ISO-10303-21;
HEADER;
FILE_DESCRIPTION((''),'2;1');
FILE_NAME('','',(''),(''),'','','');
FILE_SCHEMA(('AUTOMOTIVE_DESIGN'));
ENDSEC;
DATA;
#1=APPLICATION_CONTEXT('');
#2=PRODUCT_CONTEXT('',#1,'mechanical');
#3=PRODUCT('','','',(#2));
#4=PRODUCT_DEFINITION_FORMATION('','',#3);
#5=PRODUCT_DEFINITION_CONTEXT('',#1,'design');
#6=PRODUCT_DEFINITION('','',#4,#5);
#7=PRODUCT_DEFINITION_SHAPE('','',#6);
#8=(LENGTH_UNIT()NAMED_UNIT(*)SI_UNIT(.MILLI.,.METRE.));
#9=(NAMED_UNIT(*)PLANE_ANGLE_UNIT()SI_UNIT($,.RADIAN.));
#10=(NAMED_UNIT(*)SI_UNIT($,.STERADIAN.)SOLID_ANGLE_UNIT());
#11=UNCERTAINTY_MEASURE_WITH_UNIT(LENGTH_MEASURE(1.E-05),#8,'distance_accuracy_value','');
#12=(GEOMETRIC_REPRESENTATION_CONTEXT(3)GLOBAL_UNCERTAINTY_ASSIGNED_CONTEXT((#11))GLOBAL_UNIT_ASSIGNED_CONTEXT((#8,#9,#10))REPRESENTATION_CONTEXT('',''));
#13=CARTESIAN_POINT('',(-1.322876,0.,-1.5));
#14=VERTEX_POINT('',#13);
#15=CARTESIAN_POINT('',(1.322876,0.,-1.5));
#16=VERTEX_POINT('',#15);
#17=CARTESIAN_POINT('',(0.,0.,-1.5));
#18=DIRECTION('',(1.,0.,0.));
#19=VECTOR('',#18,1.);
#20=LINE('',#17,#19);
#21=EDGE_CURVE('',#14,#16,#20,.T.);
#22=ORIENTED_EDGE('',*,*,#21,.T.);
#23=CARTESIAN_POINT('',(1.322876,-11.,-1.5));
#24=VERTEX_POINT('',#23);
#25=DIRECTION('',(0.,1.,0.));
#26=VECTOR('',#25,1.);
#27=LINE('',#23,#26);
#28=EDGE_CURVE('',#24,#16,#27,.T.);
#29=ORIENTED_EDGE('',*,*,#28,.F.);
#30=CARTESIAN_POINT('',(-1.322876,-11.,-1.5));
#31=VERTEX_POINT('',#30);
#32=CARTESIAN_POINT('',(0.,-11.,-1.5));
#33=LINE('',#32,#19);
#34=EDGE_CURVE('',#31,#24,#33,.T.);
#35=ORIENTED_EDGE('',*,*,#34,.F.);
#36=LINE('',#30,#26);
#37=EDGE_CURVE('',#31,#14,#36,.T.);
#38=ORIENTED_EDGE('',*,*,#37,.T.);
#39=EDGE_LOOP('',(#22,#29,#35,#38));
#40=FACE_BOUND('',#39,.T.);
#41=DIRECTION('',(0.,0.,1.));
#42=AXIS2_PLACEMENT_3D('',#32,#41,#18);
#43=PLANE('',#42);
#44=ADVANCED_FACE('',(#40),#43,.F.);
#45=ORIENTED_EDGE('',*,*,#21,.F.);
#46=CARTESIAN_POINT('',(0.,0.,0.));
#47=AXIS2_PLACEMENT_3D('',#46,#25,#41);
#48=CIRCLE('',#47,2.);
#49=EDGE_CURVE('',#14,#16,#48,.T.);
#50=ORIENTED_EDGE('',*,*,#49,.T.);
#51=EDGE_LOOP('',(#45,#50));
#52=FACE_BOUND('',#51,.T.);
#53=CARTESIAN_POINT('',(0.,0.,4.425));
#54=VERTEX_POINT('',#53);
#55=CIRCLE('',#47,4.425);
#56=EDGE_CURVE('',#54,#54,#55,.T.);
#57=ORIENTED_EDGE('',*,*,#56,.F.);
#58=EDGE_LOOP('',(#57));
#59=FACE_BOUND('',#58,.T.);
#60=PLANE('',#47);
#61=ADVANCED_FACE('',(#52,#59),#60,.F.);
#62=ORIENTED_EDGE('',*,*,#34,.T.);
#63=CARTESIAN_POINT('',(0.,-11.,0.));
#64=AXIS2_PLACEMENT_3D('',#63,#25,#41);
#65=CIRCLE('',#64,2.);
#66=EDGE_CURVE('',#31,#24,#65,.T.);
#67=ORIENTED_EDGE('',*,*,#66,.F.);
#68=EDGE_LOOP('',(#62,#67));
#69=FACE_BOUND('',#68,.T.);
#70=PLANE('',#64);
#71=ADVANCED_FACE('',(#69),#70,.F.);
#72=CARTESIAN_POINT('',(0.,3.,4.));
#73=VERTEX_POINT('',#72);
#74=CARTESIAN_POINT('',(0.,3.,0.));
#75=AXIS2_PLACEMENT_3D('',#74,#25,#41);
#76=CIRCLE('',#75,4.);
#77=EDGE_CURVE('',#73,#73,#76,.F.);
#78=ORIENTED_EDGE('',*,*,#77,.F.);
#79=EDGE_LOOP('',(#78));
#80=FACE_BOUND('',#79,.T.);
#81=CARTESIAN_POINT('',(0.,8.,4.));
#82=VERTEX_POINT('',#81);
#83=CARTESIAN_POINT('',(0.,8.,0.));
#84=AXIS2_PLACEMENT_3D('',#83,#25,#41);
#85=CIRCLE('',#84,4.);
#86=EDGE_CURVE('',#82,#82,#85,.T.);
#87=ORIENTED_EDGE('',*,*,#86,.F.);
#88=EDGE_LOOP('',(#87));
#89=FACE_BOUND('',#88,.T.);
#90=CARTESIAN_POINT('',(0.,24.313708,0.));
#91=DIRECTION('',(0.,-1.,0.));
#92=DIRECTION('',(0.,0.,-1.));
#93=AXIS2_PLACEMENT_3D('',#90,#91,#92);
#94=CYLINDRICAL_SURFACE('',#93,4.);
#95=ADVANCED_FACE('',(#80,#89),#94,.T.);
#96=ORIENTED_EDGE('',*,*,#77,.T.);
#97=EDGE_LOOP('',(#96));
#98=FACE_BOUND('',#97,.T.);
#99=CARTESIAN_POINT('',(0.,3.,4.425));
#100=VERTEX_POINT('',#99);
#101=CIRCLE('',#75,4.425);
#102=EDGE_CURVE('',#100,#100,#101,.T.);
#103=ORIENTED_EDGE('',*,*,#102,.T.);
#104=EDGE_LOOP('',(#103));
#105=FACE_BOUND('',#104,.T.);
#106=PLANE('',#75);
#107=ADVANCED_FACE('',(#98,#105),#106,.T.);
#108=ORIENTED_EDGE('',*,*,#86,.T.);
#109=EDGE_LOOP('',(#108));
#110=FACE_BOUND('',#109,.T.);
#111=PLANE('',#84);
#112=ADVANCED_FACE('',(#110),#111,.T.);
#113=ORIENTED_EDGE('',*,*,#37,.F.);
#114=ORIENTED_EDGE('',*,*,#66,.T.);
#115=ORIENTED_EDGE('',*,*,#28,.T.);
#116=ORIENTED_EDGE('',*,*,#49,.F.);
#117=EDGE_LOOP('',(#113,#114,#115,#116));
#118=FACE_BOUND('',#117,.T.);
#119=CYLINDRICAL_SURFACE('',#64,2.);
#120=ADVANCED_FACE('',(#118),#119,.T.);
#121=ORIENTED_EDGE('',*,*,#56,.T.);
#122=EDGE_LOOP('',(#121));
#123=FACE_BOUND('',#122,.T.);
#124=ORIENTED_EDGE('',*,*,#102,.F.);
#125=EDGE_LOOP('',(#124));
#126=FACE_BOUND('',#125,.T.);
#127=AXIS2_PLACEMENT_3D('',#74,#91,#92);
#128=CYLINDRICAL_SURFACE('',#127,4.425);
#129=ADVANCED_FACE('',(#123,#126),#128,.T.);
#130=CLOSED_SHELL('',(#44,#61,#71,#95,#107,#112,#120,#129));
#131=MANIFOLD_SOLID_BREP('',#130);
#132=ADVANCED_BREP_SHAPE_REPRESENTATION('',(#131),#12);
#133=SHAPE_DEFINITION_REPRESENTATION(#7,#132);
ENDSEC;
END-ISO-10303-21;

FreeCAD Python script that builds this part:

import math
import FreeCAD as App
import Part
import Sketcher

doc = App.newDocument("Part")
body = doc.addObject("PartDesign::Body", "Body")

sketch1 = body.newObject("Sketcher::SketchObject", "Sketch")
sketch1.AttachmentSupport = (doc.getObject("XZ_Plane"), [""])
sketch1.MapMode = "FlatFace"
sketch1.addGeometry([
    Part.Circle(App.Vector(0, 0, 0), App.Vector(0, 0, 1), 4.4),
    Part.Circle(App.Vector(0, 0, 0), App.Vector(0, 0, 1), 4),
], False)
sketch1.addConstraint([
    Sketcher.Constraint("Coincident", 0, 3, -1, 1),
    Sketcher.Constraint("Coincident", 1, 3, -1, 1),
    Sketcher.Constraint("Diameter", 1, 8.0),
    Sketcher.Constraint("Diameter", 0, 8.85),
])
pad1 = body.newObject("PartDesign::Pad", "Pad")
pad1.Profile = sketch1
pad1.Length = 3
pad1.Reversed = True

sketch2 = body.newObject("Sketcher::SketchObject", "Sketch001")
sketch2.AttachmentSupport = (doc.getObject("XZ_Plane"), [""])
sketch2.MapMode = "FlatFace"
sketch2.addGeometry(Part.Circle(App.Vector(0, 0, 0), App.Vector(0, 0, 1), 4), False)
sketch2.addConstraint([
    Sketcher.Constraint("Coincident", 0, 3, -1, 1),
    Sketcher.Constraint("Diameter", 0, 8.0),
])
pad2 = body.newObject("PartDesign::Pad", "Pad001")
pad2.Profile = sketch2
pad2.Length = 8
pad2.Reversed = True

sketch3 = body.newObject("Sketcher::SketchObject", "Sketch002")
sketch3.AttachmentSupport = (doc.getObject("XZ_Plane"), [""])
sketch3.MapMode = "FlatFace"
sketch3.addGeometry([
    Part.LineSegment(App.Vector(1.3, -1.5, 0), App.Vector(-1.3, -1.5, 0)),
    Part.ArcOfCircle(Part.Circle(App.Vector(0, 0, 0), App.Vector(0, 0, 1), 2), math.radians(0), math.radians(229)),
    Part.ArcOfCircle(Part.Circle(App.Vector(0, 0, 0), App.Vector(0, 0, 1), 2), math.radians(-49), math.radians(0)),
], False)
sketch3.addConstraint([
    Sketcher.Constraint("Coincident", 0, 2, 1, 2),
    Sketcher.Constraint("Tangent", 1, 1, 2, 2),
    Sketcher.Constraint("Coincident", 2, 1, 0, 1),
    Sketcher.Constraint("Horizontal", 0),
    Sketcher.Constraint("Coincident", 1, 3, -1, 1),
    Sketcher.Constraint("Equal", 1, 2),
    Sketcher.Constraint("PointOnObject", 1, 1, -1),
    Sketcher.Constraint("Radius", 1, 2.0),
    Sketcher.Constraint("DistanceY", 0, 2, -1, 1, 1.5),
])
pad3 = body.newObject("PartDesign::Pad", "Pad002")
pad3.Profile = sketch3
pad3.Length = 11

doc.recompute()
